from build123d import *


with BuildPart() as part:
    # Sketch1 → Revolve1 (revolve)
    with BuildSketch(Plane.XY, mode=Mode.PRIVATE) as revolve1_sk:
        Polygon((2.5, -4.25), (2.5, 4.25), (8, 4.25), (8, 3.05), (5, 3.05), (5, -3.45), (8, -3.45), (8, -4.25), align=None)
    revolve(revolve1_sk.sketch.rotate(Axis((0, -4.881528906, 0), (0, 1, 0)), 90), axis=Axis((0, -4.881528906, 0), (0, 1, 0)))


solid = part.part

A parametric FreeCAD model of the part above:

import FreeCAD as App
import Part
import Sketcher
from FreeCAD import Vector
Q = App.Units.Quantity


def add_polygon(sketch, points):
    """Adds a closed chain of lines whose ends are joined by coincident constraints."""
    first, n = sketch.GeometryCount, len(points)
    for a, b in zip(points, points[1:] + points[:1]):
        sketch.addGeometry(Part.LineSegment(App.Vector(*a, 0), App.Vector(*b, 0)), False)
    for i in range(n):
        sketch.addConstraint(Sketcher.Constraint("Coincident", first + i, 2, first + (i + 1) % n, 1))

doc = App.newDocument("Part")
body = doc.addObject("PartDesign::Body", "Body")

# Sketch on XY plane
sketch1 = body.newObject("Sketcher::SketchObject", "Sketch")
sketch1.AttachmentSupport = (doc.getObject("XY_Plane"), [""])
sketch1.MapMode = "FlatFace"
add_polygon(sketch1, [(2.5, 4.2), (2.5, -4.2), (8, -4.2), (8, -3.5), (5, -3.5), (5, 3), (8, 3), (8, 4.2)])  # lines 0-7
sketch1.addConstraint([
    Sketcher.Constraint("Vertical", 0),
    Sketcher.Constraint("Horizontal", 1),
    Sketcher.Constraint("Vertical", 2),
    Sketcher.Constraint("Horizontal", 3),
    Sketcher.Constraint("Vertical", 4),
    Sketcher.Constraint("Horizontal", 5),
    Sketcher.Constraint("Vertical", 6),
    Sketcher.Constraint("Horizontal", 7),
    Sketcher.Constraint("Symmetric", 1, 2, 6, 2, -1),
    Sketcher.Constraint("DistanceX", 3, 2, 3, 1, Q("3 mm")),
    Sketcher.Constraint("DistanceX", 1, 1, 1, 2, Q("5.5 mm")),
    Sketcher.Constraint("DistanceY", 0, 2, 0, 1, Q("8.5 mm")),
    Sketcher.Constraint("DistanceY", 2, 1, 2, 2, Q("0.8 mm")),
    Sketcher.Constraint("DistanceY", 4, 1, 4, 2, Q("6.5 mm")),
    Sketcher.Constraint("DistanceX", -1, 1, 1, 2, Q("8 mm")),
])
revolution = body.newObject("PartDesign::Revolution", "Revolution")
revolution.Profile = sketch1
revolution.ReferenceAxis = (sketch1, ["V_Axis"])
revolution.Angle = 360

doc.recompute()
